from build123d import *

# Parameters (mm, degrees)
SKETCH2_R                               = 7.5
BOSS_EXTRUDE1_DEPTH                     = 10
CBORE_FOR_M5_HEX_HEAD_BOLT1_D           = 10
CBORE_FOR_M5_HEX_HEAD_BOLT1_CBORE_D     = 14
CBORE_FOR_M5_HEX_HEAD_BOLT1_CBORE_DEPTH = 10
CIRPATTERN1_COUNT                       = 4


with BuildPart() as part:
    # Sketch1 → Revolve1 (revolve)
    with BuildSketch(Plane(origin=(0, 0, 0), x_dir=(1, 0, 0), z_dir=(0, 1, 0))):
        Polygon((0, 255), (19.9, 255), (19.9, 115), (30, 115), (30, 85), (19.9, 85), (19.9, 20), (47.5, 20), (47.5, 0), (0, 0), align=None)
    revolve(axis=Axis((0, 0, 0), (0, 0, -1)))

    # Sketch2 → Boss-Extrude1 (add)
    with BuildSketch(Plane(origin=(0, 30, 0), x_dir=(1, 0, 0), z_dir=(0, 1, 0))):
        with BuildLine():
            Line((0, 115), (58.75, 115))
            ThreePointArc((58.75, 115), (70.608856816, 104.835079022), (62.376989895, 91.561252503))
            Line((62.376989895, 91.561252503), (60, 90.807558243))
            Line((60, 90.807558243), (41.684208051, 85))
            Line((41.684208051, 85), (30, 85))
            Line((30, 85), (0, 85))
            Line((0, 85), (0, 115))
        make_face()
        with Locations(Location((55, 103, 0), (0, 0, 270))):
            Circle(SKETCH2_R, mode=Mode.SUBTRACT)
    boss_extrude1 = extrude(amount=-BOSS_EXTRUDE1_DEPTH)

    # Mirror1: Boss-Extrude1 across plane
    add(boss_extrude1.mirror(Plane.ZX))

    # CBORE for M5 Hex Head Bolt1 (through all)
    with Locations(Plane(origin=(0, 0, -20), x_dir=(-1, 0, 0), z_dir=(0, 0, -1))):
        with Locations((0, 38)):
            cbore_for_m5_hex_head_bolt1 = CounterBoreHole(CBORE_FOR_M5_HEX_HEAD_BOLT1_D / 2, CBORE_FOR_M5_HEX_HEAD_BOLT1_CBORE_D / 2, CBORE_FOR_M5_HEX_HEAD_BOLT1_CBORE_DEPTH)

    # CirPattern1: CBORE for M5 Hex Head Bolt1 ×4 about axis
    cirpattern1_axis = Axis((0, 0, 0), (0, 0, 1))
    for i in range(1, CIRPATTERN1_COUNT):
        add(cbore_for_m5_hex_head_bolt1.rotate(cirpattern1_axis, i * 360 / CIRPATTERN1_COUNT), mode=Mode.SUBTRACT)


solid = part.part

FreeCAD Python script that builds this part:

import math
import FreeCAD as App
import Part
import Sketcher

V = App.Vector
Q = App.Units.Quantity

doc = App.newDocument("Part")
body = doc.addObject("PartDesign::Body", "Body")

sketch1 = body.newObject("Sketcher::SketchObject", "Sketch")
sketch1.AttachmentSupport = (doc.getObject("XZ_Plane"), [""])
sketch1.MapMode = "FlatFace"
sketch1.addGeometry([
    Part.LineSegment(V(20, -255, 0), V(0, -255, 0)),
    Part.LineSegment(V(0, -255, 0), V(0, 0, 0)),
    Part.LineSegment(V(0, 0, 0), V(48, 0, 0)),
    Part.LineSegment(V(48, 0, 0), V(48, -20, 0)),
    Part.LineSegment(V(48, -20, 0), V(20, -20, 0)),
    Part.LineSegment(V(20, -20, 0), V(20, -85, 0)),
    Part.LineSegment(V(20, -85, 0), V(30, -85, 0)),
    Part.LineSegment(V(30, -85, 0), V(30, -115, 0)),
    Part.LineSegment(V(30, -115, 0), V(20, -115, 0)),
    Part.LineSegment(V(20, -115, 0), V(20, -255, 0)),
], False)
sketch1.addConstraint([
    Sketcher.Constraint("Coincident", 0, 2, 1, 1),
    Sketcher.Constraint("Coincident", 1, 2, 2, 1),
    Sketcher.Constraint("Coincident", 2, 2, 3, 1),
    Sketcher.Constraint("Coincident", 3, 2, 4, 1),
    Sketcher.Constraint("Coincident", 4, 2, 5, 1),
    Sketcher.Constraint("Coincident", 5, 2, 6, 1),
    Sketcher.Constraint("Coincident", 6, 2, 7, 1),
    Sketcher.Constraint("Coincident", 7, 2, 8, 1),
    Sketcher.Constraint("Coincident", 8, 2, 9, 1),
    Sketcher.Constraint("Coincident", 9, 2, 0, 1),
    Sketcher.Constraint("Horizontal", 0),
    Sketcher.Constraint("Vertical", 1),
    Sketcher.Constraint("Horizontal", 2),
    Sketcher.Constraint("Vertical", 3),
    Sketcher.Constraint("Horizontal", 4),
    Sketcher.Constraint("Vertical", 5),
    Sketcher.Constraint("Horizontal", 6),
    Sketcher.Constraint("Vertical", 7),
    Sketcher.Constraint("Horizontal", 8),
    Sketcher.Constraint("Vertical", 9),
    Sketcher.Constraint("Coincident", 1, 2, -1, 1),
    Sketcher.Constraint("Vertical", 5, 2, 8, 2),
    Sketcher.Constraint("DistanceY", 1, 1, 1, 2, Q("255 mm")),
    Sketcher.Constraint("DistanceY", 3, 2, 3, 1, Q("20 mm")),
    Sketcher.Constraint("DistanceY", 5, 2, 5, 1, Q("65 mm")),
    Sketcher.Constraint("DistanceY", 7, 2, 7, 1, Q("30 mm")),
    Sketcher.Constraint("DistanceX", 0, 2, 0, 1, Q("19.9 mm")),
    Sketcher.Constraint("DistanceX", 2, 1, 2, 2, Q("47.5 mm")),
    Sketcher.Constraint("DistanceX", 6, 1, 6, 2, Q("10.1 mm")),
])
revolution = body.newObject("PartDesign::Revolution", "Revolution")
revolution.Profile = sketch1
revolution.ReferenceAxis = (sketch1, ["V_Axis"])
revolution.Angle = 360

sketch2 = body.newObject("Sketcher::SketchObject", "Sketch001")
sketch2.AttachmentSupport = (doc.getObject("XZ_Plane"), [""])
sketch2.MapMode = "FlatFace"
sketch2.AttachmentOffset = App.Placement(V(0, 0, -30), App.Rotation())
sketch2.addGeometry([
    Part.LineSegment(V(58.8, -115, 0), V(0, -115, 0)),
    Part.LineSegment(V(0, -115, 0), V(0, -85, 0)),
    Part.LineSegment(V(0, -85, 0), V(41.7, -85, 0)),
    Part.LineSegment(V(41.7, -85, 0), V(60, -90.8, 0)),
    Part.LineSegment(V(60, -90.8, 0), V(62.4, -91.6, 0)),
    Part.ArcOfCircle(Part.Circle(V(58.8, -103, 0), V(0, 0, 1), 12), math.radians(-90), math.radians(72)),
    Part.Circle(V(55, -103, 0), V(0, 0, 1), 7.5),
], False)
sketch2.addConstraint([
    Sketcher.Constraint("Coincident", 0, 2, 1, 1),
    Sketcher.Constraint("Coincident", 1, 2, 2, 1),
    Sketcher.Constraint("Coincident", 2, 2, 3, 1),
    Sketcher.Constraint("Coincident", 3, 2, 4, 1),
    Sketcher.Constraint("Tangent", 4, 2, 5, 2),
    Sketcher.Constraint("Tangent", 5, 1, 0, 1),
    Sketcher.Constraint("Horizontal", 0),
    Sketcher.Constraint("Vertical", 1),
    Sketcher.Constraint("Horizontal", 2),
    Sketcher.Constraint("PointOnObject", 0, 2, -2),
    Sketcher.Constraint("Parallel", 3, 4),
    Sketcher.Constraint("Horizontal", 5, 3, 6, 3),
    Sketcher.Constraint("Diameter", 6, Q("15 mm")),
    Sketcher.Constraint("Radius", 5, Q("12 mm")),
    Sketcher.Constraint("DistanceY", 1, 1, 1, 2, Q("30 mm")),
    Sketcher.Constraint("DistanceY", 5, 3, -1, 1, Q("103 mm")),
    Sketcher.Constraint("DistanceX", -1, 1, 6, 3, Q("55 mm")),
    Sketcher.Constraint("DistanceX", -1, 1, 3, 2, Q("60 mm")),
    Sketcher.Constraint("DistanceX", 0, 2, 0, 1, Q("58.75 mm")),
    Sketcher.Constraint("DistanceX", 2, 1, 2, 2, Q("41.684208 mm")),
])
pad1 = body.newObject("PartDesign::Pad", "Pad")
pad1.Profile = sketch2
pad1.Length = 10
doc.recompute()

mirrored = body.newObject("PartDesign::Mirrored", "Mirrored")
mirrored.Originals = [pad1]
mirrored.MirrorPlane = (doc.getObject("XZ_Plane"), [""])
body.Tip = mirrored

sketch3 = body.newObject("Sketcher::SketchObject", "Sketch002")
sketch3.AttachmentSupport = (doc.getObject("XY_Plane"), [""])
sketch3.MapMode = "FlatFace"
sketch3.AttachmentOffset = App.Placement(V(0, 0, -20), App.Rotation())
sketch3.addGeometry(Part.Circle(V(0, 38, 0), V(0, 0, 1), 5), False)
sketch3.addConstraint([
    Sketcher.Constraint("PointOnObject", 0, 3, -2),
    Sketcher.Constraint("Diameter", 0, Q("10 mm")),
    Sketcher.Constraint("DistanceY", -1, 1, 0, 3, Q("38 mm")),
])
doc.recompute()
hole = body.newObject("PartDesign::Hole", "Hole")
hole.Profile = sketch3
hole.ThreadType = "None"
hole.Diameter = 10
hole.DepthType = "ThroughAll"
hole.HoleCutType = "Counterbore"
hole.HoleCutDiameter = 14
hole.HoleCutDepth = 10
hole.Reversed = True
doc.recompute()

polarpattern = body.newObject("PartDesign::PolarPattern", "PolarPattern")
polarpattern.Originals = [hole]
polarpattern.Axis = (doc.getObject("Z_Axis"), [""])
polarpattern.Angle = 360
polarpattern.Occurrences = 4
body.Tip = polarpattern

doc.recompute()
